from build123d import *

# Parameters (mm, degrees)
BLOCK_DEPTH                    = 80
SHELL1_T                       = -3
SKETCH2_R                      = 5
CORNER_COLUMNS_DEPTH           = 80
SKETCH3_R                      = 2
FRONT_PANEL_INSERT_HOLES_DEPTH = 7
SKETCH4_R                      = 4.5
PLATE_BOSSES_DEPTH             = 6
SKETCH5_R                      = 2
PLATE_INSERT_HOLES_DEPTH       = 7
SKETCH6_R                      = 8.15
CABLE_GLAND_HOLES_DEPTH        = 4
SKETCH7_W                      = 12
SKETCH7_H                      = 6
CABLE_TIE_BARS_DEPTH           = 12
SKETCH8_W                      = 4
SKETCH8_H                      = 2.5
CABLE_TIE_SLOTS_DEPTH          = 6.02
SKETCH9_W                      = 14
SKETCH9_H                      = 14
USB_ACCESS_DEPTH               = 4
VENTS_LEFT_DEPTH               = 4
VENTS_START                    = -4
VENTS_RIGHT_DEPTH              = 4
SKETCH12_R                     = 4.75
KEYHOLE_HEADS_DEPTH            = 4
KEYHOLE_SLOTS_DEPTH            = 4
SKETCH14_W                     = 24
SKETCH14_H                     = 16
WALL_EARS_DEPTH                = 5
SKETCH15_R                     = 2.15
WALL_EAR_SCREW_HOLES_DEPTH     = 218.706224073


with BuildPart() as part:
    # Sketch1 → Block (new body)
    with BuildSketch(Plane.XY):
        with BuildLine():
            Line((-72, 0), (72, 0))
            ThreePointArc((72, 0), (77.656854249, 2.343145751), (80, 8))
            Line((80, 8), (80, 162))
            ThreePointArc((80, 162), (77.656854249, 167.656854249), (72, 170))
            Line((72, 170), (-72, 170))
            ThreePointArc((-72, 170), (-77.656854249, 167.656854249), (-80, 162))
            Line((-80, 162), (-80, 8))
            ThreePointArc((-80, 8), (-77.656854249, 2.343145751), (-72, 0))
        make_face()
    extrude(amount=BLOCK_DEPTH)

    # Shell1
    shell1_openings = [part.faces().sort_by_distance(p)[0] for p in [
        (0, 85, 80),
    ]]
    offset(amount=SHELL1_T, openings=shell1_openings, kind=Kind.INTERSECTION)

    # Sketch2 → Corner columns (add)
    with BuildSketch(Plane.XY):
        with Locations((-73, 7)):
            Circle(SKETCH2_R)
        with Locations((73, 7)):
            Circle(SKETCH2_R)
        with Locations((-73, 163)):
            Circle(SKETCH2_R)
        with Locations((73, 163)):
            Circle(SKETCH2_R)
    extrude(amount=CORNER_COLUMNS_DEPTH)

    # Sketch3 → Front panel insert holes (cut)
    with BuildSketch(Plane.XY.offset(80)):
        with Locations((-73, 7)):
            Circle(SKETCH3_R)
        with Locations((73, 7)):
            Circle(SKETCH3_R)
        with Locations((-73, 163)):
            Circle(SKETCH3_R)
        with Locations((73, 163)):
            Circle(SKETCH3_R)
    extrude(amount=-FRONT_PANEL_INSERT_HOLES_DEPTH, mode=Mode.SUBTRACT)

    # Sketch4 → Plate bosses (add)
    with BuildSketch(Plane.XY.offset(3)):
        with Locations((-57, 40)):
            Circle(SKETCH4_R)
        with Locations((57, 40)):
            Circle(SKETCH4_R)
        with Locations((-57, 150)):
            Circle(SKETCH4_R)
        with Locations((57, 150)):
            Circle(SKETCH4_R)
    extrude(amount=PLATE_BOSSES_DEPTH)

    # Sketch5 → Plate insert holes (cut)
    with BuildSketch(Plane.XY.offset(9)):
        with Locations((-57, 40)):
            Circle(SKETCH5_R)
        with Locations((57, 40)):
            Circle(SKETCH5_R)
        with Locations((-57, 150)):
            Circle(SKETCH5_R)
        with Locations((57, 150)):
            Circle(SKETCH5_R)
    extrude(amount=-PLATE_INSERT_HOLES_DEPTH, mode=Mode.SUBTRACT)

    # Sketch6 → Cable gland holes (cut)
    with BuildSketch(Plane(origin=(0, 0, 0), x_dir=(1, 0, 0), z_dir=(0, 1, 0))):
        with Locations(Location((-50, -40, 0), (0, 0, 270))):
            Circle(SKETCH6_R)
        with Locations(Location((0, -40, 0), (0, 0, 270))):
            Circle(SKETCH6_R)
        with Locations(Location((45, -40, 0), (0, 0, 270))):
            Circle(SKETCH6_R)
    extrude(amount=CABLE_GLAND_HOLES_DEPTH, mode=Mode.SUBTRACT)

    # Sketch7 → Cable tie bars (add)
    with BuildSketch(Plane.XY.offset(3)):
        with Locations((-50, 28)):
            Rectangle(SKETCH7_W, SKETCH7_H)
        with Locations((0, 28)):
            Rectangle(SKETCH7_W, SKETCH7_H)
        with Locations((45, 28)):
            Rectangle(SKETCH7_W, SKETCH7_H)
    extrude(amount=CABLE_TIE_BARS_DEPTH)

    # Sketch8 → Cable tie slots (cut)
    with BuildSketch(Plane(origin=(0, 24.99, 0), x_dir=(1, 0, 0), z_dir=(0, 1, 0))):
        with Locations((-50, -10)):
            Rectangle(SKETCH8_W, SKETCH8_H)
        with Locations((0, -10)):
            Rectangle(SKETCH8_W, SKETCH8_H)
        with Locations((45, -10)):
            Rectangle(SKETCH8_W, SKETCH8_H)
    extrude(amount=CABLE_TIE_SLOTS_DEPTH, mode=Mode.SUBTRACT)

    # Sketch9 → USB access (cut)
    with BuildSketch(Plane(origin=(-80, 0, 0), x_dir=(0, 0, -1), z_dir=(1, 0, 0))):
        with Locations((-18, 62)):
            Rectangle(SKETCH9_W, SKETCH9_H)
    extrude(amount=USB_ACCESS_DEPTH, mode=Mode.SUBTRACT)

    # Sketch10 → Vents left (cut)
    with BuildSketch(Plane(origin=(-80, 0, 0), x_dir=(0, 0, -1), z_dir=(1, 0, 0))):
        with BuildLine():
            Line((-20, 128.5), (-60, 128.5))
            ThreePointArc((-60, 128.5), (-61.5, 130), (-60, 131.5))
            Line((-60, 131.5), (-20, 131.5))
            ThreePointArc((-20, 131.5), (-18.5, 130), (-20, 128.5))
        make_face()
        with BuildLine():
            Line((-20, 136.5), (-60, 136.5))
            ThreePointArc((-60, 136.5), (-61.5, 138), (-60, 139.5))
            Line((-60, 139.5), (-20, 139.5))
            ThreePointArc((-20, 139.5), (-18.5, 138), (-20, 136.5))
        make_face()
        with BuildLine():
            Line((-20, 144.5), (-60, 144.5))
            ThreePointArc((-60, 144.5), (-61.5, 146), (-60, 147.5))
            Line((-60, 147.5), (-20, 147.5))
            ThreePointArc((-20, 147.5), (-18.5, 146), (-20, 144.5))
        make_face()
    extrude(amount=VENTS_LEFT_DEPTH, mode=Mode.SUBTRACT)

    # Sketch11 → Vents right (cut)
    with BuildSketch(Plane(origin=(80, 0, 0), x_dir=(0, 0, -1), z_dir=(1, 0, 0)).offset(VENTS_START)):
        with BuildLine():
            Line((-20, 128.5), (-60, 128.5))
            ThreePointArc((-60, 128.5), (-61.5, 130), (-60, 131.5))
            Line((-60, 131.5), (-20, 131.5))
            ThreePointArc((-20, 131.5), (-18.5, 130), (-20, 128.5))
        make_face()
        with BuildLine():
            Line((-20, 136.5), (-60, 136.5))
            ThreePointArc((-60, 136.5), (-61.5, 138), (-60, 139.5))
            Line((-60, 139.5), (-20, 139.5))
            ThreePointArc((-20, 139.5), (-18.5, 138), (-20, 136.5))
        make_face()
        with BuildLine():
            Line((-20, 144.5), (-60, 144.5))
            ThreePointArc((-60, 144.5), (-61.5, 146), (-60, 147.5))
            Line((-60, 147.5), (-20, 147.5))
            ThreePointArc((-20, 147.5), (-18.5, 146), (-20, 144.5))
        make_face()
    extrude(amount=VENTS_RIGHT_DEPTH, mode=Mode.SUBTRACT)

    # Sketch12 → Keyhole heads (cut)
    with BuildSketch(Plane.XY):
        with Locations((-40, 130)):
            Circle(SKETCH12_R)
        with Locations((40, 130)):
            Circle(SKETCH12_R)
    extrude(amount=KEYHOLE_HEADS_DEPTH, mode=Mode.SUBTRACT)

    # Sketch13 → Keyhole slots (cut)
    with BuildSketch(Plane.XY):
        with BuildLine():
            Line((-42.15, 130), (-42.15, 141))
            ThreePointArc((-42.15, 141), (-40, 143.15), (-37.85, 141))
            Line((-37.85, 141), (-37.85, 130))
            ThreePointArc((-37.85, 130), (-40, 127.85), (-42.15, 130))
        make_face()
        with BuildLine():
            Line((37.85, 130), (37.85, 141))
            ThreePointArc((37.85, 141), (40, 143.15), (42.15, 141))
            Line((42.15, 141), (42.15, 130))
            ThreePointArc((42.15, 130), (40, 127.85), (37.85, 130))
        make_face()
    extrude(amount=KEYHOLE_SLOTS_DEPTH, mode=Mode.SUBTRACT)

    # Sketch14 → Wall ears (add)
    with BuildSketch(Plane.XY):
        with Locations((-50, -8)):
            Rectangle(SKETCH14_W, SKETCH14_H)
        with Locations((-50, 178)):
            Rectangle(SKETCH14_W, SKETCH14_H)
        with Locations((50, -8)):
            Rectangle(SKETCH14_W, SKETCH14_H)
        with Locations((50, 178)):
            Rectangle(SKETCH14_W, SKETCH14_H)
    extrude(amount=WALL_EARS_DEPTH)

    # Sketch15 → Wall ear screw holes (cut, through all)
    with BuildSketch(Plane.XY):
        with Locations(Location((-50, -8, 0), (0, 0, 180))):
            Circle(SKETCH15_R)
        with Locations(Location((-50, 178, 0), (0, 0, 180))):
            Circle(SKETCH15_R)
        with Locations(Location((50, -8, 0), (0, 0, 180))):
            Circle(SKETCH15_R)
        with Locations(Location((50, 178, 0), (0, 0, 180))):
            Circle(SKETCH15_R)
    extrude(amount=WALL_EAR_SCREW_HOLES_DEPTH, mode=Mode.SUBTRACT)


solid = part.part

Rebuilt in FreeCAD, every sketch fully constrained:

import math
import FreeCAD as App
import Part
import Sketcher

V = App.Vector


def faces_at(feature, points):
    """Names of the faces that lie closest to the given points."""
    faces = feature.Shape.Faces
    near = lambda p: min(range(len(faces)), key=lambda i: faces[i].distToShape(Part.Vertex(*p))[0])
    return sorted({f"Face{near(p) + 1}" for p in points})

doc = App.newDocument("Part")
params = doc.addObject("Spreadsheet::Sheet", "Params")
for row, (alias, value) in enumerate([
    ("sketch1_radius", "8 mm"),
    ("sketch1_width", "144 mm"),
    ("sketch1_height", "154 mm"),
    ("pad1_length", "80 mm"),
    ("thickness_wall", "3 mm"),
    ("sketch2_diameter", "10 mm"),
    ("pad2_length", "80 mm"),
    ("sketch3_diameter", "4 mm"),
    ("pocket1_length", "7 mm"),
    ("sketch4_diameter", "9 mm"),
    ("pad3_length", "6 mm"),
    ("sketch5_diameter", "4 mm"),
    ("pocket2_length", "7 mm"),
    ("sketch6_diameter", "16.3 mm"),
    ("pocket3_length", "4 mm"),
    ("sketch7_width", "12 mm"),
    ("sketch7_height", "6 mm"),
    ("pad4_length", "12 mm"),
    ("sketch8_width", "4 mm"),
    ("sketch8_height", "2.5 mm"),
    ("pocket4_length", "6.02 mm"),
    ("sketch9_width", "14 mm"),
    ("pocket5_length", "4 mm"),
    ("sketch10_radius", "1.5 mm"),
    ("sketch10_height", "40 mm"),
    ("pocket6_length", "4 mm"),
    ("sketch11_radius", "1.5 mm"),
    ("sketch11_height", "40 mm"),
    ("pocket7_length", "4 mm"),
    ("sketch12_diameter", "9.5 mm"),
    ("pocket8_length", "4 mm"),
    ("sketch13_height", "11 mm"),
    ("sketch13_radius", "2.15 mm"),
    ("pocket9_length", "4 mm"),
    ("sketch14_width", "24 mm"),
    ("sketch14_height", "16 mm"),
    ("pad5_length", "5 mm"),
    ("sketch15_diameter", "4.3 mm"),
], start=1):
    params.set(f"A{row}", alias)
    params.set(f"B{row}", "=" + value)
    params.setAlias(f"B{row}", alias)

body = doc.addObject("PartDesign::Body", "Body")

# Sketch on XY plane
sketch1 = body.newObject("Sketcher::SketchObject", "Sketch")
sketch1.AttachmentSupport = (doc.getObject("XY_Plane"), [""])
sketch1.MapMode = "FlatFace"
sketch1.addGeometry([
    Part.LineSegment(V(-72, 0, 0), V(72, 0, 0)),  # 0
    Part.ArcOfCircle(Part.Circle(V(72, 8, 0), V(0, 0, 1), 8), math.radians(-90), math.radians(0)),  # 1
    Part.LineSegment(V(80, 8, 0), V(80, 162, 0)),  # 2
    Part.ArcOfCircle(Part.Circle(V(72, 162, 0), V(0, 0, 1), 8), math.radians(0), math.radians(90)),  # 3
    Part.LineSegment(V(72, 170, 0), V(-72, 170, 0)),  # 4
    Part.ArcOfCircle(Part.Circle(V(-72, 162, 0), V(0, 0, 1), 8), math.radians(90), math.radians(180)),  # 5
    Part.LineSegment(V(-80, 162, 0), V(-80, 8, 0)),  # 6
    Part.ArcOfCircle(Part.Circle(V(-72, 8, 0), V(0, 0, 1), 8), math.radians(-180), math.radians(-90)),  # 7
], False)
sketch1.addConstraint([
    Sketcher.Constraint("Tangent", 0, 2, 1, 1),
    Sketcher.Constraint("Tangent", 1, 2, 2, 1),
    Sketcher.Constraint("Tangent", 2, 2, 3, 1),
    Sketcher.Constraint("Tangent", 3, 2, 4, 1),
    Sketcher.Constraint("Tangent", 4, 2, 5, 1),
    Sketcher.Constraint("Tangent", 5, 2, 6, 1),
    Sketcher.Constraint("Tangent", 6, 2, 7, 1),
    Sketcher.Constraint("Tangent", 7, 2, 0, 1),
    Sketcher.Constraint("Horizontal", 0),
    Sketcher.Constraint("Vertical", 2),
    Sketcher.Constraint("Horizontal", 4),
    Sketcher.Constraint("Vertical", 6),
    Sketcher.Constraint("Equal", 1, 3),
    Sketcher.Constraint("Equal", 3, 5),
    Sketcher.Constraint("Equal", 5, 7),
    Sketcher.Constraint("Symmetric", 0, 2, 7, 2, -1, 1),
    Sketcher.Constraint("Radius", 1, 8.0),
    Sketcher.Constraint("DistanceX", 0, 1, 0, 2, 144.0),
    Sketcher.Constraint("DistanceY", 2, 1, 2, 2, 154.0),
])
sketch1.setExpression("Constraints[16]", "Params.sketch1_radius")
sketch1.setExpression("Constraints[17]", "Params.sketch1_width")
sketch1.setExpression("Constraints[18]", "Params.sketch1_height")
pad1 = body.newObject("PartDesign::Pad", "Pad")
pad1.Profile = sketch1
pad1.setExpression("Length", "Params.pad1_length")
doc.recompute()

thickness = body.newObject("PartDesign::Thickness", "Thickness")
thickness.Base = (pad1, faces_at(pad1, [(0, 85, 80)]))
thickness.setExpression("Value", "Params.thickness_wall")
thickness.Reversed = True
thickness.Join = "Intersection"

# Sketch on XY plane
sketch2 = body.newObject("Sketcher::SketchObject", "Sketch001")
sketch2.AttachmentSupport = (doc.getObject("XY_Plane"), [""])
sketch2.MapMode = "FlatFace"
sketch2.addGeometry([
    Part.Circle(V(-73, 7, 0), V(0, 0, 1), 5),
    Part.Circle(V(73, 7, 0), V(0, 0, 1), 5),
    Part.Circle(V(-73, 163, 0), V(0, 0, 1), 5),
    Part.Circle(V(73, 163, 0), V(0, 0, 1), 5),
], False)
sketch2.addConstraint([
    Sketcher.Constraint("Equal", 0, 1),
    Sketcher.Constraint("Equal", 1, 2),
    Sketcher.Constraint("Equal", 2, 3),
    Sketcher.Constraint("Symmetric", 0, 3, 1, 3, -2),
    Sketcher.Constraint("Symmetric", 2, 3, 3, 3, -2),
    Sketcher.Constraint("Vertical", 0, 3, 2, 3),
    Sketcher.Constraint("Diameter", 0, 10.0),
    Sketcher.Constraint("DistanceX", 0, 3, -1, 1, 73.0),
    Sketcher.Constraint("DistanceY", -1, 1, 0, 3, 7.0),
    Sketcher.Constraint("DistanceY", -1, 1, 2, 3, 163.0),
])
sketch2.setExpression("Constraints[6]", "Params.sketch2_diameter")
pad2 = body.newObject("PartDesign::Pad", "Pad001")
pad2.Profile = sketch2
pad2.setExpression("Length", "Params.pad2_length")

# Sketch on XY plane
sketch3 = body.newObject("Sketcher::SketchObject", "Sketch002")
sketch3.AttachmentSupport = (doc.getObject("XY_Plane"), [""])
sketch3.MapMode = "FlatFace"
sketch3.AttachmentOffset = App.Placement(V(0, 0, 80), App.Rotation())
sketch3.addGeometry([
    Part.Circle(V(-73, 7, 0), V(0, 0, 1), 2),
    Part.Circle(V(73, 7, 0), V(0, 0, 1), 2),
    Part.Circle(V(-73, 163, 0), V(0, 0, 1), 2),
    Part.Circle(V(73, 163, 0), V(0, 0, 1), 2),
], False)
sketch3.addConstraint([
    Sketcher.Constraint("Equal", 0, 1),
    Sketcher.Constraint("Equal", 1, 2),
    Sketcher.Constraint("Equal", 2, 3),
    Sketcher.Constraint("Symmetric", 0, 3, 1, 3, -2),
    Sketcher.Constraint("Symmetric", 2, 3, 3, 3, -2),
    Sketcher.Constraint("Vertical", 0, 3, 2, 3),
    Sketcher.Constraint("Diameter", 0, 4.0),
    Sketcher.Constraint("DistanceX", 0, 3, -1, 1, 73.0),
    Sketcher.Constraint("DistanceY", -1, 1, 0, 3, 7.0),
    Sketcher.Constraint("DistanceY", -1, 1, 2, 3, 163.0),
])
sketch3.setExpression("Constraints[6]", "Params.sketch3_diameter")
pocket1 = body.newObject("PartDesign::Pocket", "Pocket")
pocket1.Profile = sketch3
pocket1.setExpression("Length", "Params.pocket1_length")

# Sketch on XY plane
sketch4 = body.newObject("Sketcher::SketchObject", "Sketch003")
sketch4.AttachmentSupport = (doc.getObject("XY_Plane"), [""])
sketch4.MapMode = "FlatFace"
sketch4.AttachmentOffset = App.Placement(V(0, 0, 3), App.Rotation())
sketch4.addGeometry([
    Part.Circle(V(-57, 40, 0), V(0, 0, 1), 4.5),
    Part.Circle(V(57, 40, 0), V(0, 0, 1), 4.5),
    Part.Circle(V(-57, 150, 0), V(0, 0, 1), 4.5),
    Part.Circle(V(57, 150, 0), V(0, 0, 1), 4.5),
], False)
sketch4.addConstraint([
    Sketcher.Constraint("Equal", 0, 1),
    Sketcher.Constraint("Equal", 1, 2),
    Sketcher.Constraint("Equal", 2, 3),
    Sketcher.Constraint("Symmetric", 0, 3, 1, 3, -2),
    Sketcher.Constraint("Symmetric", 2, 3, 3, 3, -2),
    Sketcher.Constraint("Vertical", 0, 3, 2, 3),
    Sketcher.Constraint("Diameter", 0, 9.0),
    Sketcher.Constraint("DistanceX", 0, 3, -1, 1, 57.0),
    Sketcher.Constraint("DistanceY", -1, 1, 0, 3, 40.0),
    Sketcher.Constraint("DistanceY", -1, 1, 2, 3, 150.0),
])
sketch4.setExpression("Constraints[6]", "Params.sketch4_diameter")
pad3 = body.newObject("PartDesign::Pad", "Pad002")
pad3.Profile = sketch4
pad3.setExpression("Length", "Params.pad3_length")

# Sketch on XY plane
sketch5 = body.newObject("Sketcher::SketchObject", "Sketch004")
sketch5.AttachmentSupport = (doc.getObject("XY_Plane"), [""])
sketch5.MapMode = "FlatFace"
sketch5.AttachmentOffset = App.Placement(V(0, 0, 9), App.Rotation())
sketch5.addGeometry([
    Part.Circle(V(-57, 40, 0), V(0, 0, 1), 2),
    Part.Circle(V(57, 40, 0), V(0, 0, 1), 2),
    Part.Circle(V(-57, 150, 0), V(0, 0, 1), 2),
    Part.Circle(V(57, 150, 0), V(0, 0, 1), 2),
], False)
sketch5.addConstraint([
    Sketcher.Constraint("Equal", 0, 1),
    Sketcher.Constraint("Equal", 1, 2),
    Sketcher.Constraint("Equal", 2, 3),
    Sketcher.Constraint("Symmetric", 0, 3, 1, 3, -2),
    Sketcher.Constraint("Symmetric", 2, 3, 3, 3, -2),
    Sketcher.Constraint("Vertical", 0, 3, 2, 3),
    Sketcher.Constraint("Diameter", 0, 4.0),
    Sketcher.Constraint("DistanceX", 0, 3, -1, 1, 57.0),
    Sketcher.Constraint("DistanceY", -1, 1, 0, 3, 40.0),
    Sketcher.Constraint("DistanceY", -1, 1, 2, 3, 150.0),
])
sketch5.setExpression("Constraints[6]", "Params.sketch5_diameter")
pocket2 = body.newObject("PartDesign::Pocket", "Pocket001")
pocket2.Profile = sketch5
pocket2.setExpression("Length", "Params.pocket2_length")

# Sketch on XZ plane
sketch6 = body.newObject("Sketcher::SketchObject", "Sketch005")
sketch6.AttachmentSupport = (doc.getObject("XZ_Plane"), [""])
sketch6.MapMode = "FlatFace"
sketch6.addGeometry([
    Part.Circle(V(-50, 40, 0), V(0, 0, 1), 8),
    Part.Circle(V(0, 40, 0), V(0, 0, 1), 8),
    Part.Circle(V(45, 40, 0), V(0, 0, 1), 8),
], False)
sketch6.addConstraint([
    Sketcher.Constraint("Equal", 0, 1),
    Sketcher.Constraint("Equal", 1, 2),
    Sketcher.Constraint("PointOnObject", 1, 3, -2),
    Sketcher.Constraint("Horizontal", 0, 3, 1, 3),
    Sketcher.Constraint("Horizontal", 1, 3, 2, 3),
    Sketcher.Constraint("Diameter", 0, 16.3),
    Sketcher.Constraint("DistanceX", 0, 3, -1, 1, 50.0),
    Sketcher.Constraint("DistanceY", -1, 1, 0, 3, 40.0),
    Sketcher.Constraint("DistanceX", -1, 1, 2, 3, 45.0),
])
sketch6.setExpression("Constraints[5]", "Params.sketch6_diameter")
pocket3 = body.newObject("PartDesign::Pocket", "Pocket002")
pocket3.Profile = sketch6
pocket3.setExpression("Length", "Params.pocket3_length")

# Sketch on XY plane
sketch7 = body.newObject("Sketcher::SketchObject", "Sketch006")
sketch7.AttachmentSupport = (doc.getObject("XY_Plane"), [""])
sketch7.MapMode = "FlatFace"
sketch7.AttachmentOffset = App.Placement(V(0, 0, 3), App.Rotation())
sketch7.addGeometry([
    Part.LineSegment(V(-56, 31, 0), V(-56, 25, 0)),  # 0
    Part.LineSegment(V(-56, 25, 0), V(-44, 25, 0)),  # 1
    Part.LineSegment(V(-44, 25, 0), V(-44, 31, 0)),  # 2
    Part.LineSegment(V(-44, 31, 0), V(-56, 31, 0)),  # 3
    Part.LineSegment(V(-6, 31, 0), V(-6, 25, 0)),  # 4
    Part.LineSegment(V(-6, 25, 0), V(6, 25, 0)),  # 5
    Part.LineSegment(V(6, 25, 0), V(6, 31, 0)),  # 6
    Part.LineSegment(V(6, 31, 0), V(-6, 31, 0)),  # 7
    Part.LineSegment(V(39, 31, 0), V(39, 25, 0)),  # 8
    Part.LineSegment(V(39, 25, 0), V(51, 25, 0)),  # 9
    Part.LineSegment(V(51, 25, 0), V(51, 31, 0)),  # 10
    Part.LineSegment(V(51, 31, 0), V(39, 31, 0)),  # 11
], False)
sketch7.addConstraint([
    Sketcher.Constraint("Coincident", 0, 2, 1, 1),
    Sketcher.Constraint("Coincident", 1, 2, 2, 1),
    Sketcher.Constraint("Coincident", 2, 2, 3, 1),
    Sketcher.Constraint("Coincident", 3, 2, 0, 1),
    Sketcher.Constraint("Coincident", 4, 2, 5, 1),
    Sketcher.Constraint("Coincident", 5, 2, 6, 1),
    Sketcher.Constraint("Coincident", 6, 2, 7, 1),
    Sketcher.Constraint("Coincident", 7, 2, 4, 1),
    Sketcher.Constraint("Coincident", 8, 2, 9, 1),
    Sketcher.Constraint("Coincident", 9, 2, 10, 1),
    Sketcher.Constraint("Coincident", 10, 2, 11, 1),
    Sketcher.Constraint("Coincident", 11, 2, 8, 1),
    Sketcher.Constraint("Vertical", 0),
    Sketcher.Constraint("Horizontal", 1),
    Sketcher.Constraint("Vertical", 2),
    Sketcher.Constraint("Horizontal", 3),
    Sketcher.Constraint("Vertical", 4),
    Sketcher.Constraint("Horizontal", 5),
    Sketcher.Constraint("Vertical", 6),
    Sketcher.Constraint("Horizontal", 7),
    Sketcher.Constraint("Vertical", 8),
    Sketcher.Constraint("Horizontal", 9),
    Sketcher.Constraint("Vertical", 10),
    Sketcher.Constraint("Horizontal", 11),
    Sketcher.Constraint("Horizontal", 1, 2, 4, 2),
    Sketcher.Constraint("Horizontal", 3, 2, 6, 2),
    Sketcher.Constraint("Horizontal", 5, 2, 8, 2),
    Sketcher.Constraint("Horizontal", 7, 2, 10, 2),
    Sketcher.Constraint("Equal", 3, 5),
    Sketcher.Constraint("Equal", 7, 9),
    Sketcher.Constraint("DistanceX", 1, 1, 1, 2, 12.0),
    Sketcher.Constraint("DistanceY", 0, 2, 0, 1, 6.0),
    Sketcher.Constraint("DistanceX", 0, 2, -1, 1, 56.0),
    Sketcher.Constraint("DistanceY", -1, 1, 0, 2, 25.0),
    Sketcher.Constraint("DistanceX", 4, 2, -1, 1, 6.0),
    Sketcher.Constraint("DistanceX", -1, 1, 8, 2, 39.0),
])
sketch7.setExpression("Constraints[30]", "Params.sketch7_width")
sketch7.setExpression("Constraints[31]", "Params.sketch7_height")
pad4 = body.newObject("PartDesign::Pad", "Pad003")
pad4.Profile = sketch7
pad4.setExpression("Length", "Params.pad4_length")

# Sketch on XZ plane
sketch8 = body.newObject("Sketcher::SketchObject", "Sketch007")
sketch8.AttachmentSupport = (doc.getObject("XZ_Plane"), [""])
sketch8.MapMode = "FlatFace"
sketch8.AttachmentOffset = App.Placement(V(0, 0, -24.99), App.Rotation())
sketch8.addGeometry([
    Part.LineSegment(V(-52, 8.8, 0), V(-52, 11.2, 0)),  # 0
    Part.LineSegment(V(-52, 11.2, 0), V(-48, 11.2, 0)),  # 1
    Part.LineSegment(V(-48, 11.2, 0), V(-48, 8.8, 0)),  # 2
    Part.LineSegment(V(-48, 8.8, 0), V(-52, 8.8, 0)),  # 3
    Part.LineSegment(V(-2, 8.8, 0), V(-2, 11.2, 0)),  # 4
    Part.LineSegment(V(-2, 11.2, 0), V(2, 11.2, 0)),  # 5
    Part.LineSegment(V(2, 11.2, 0), V(2, 8.8, 0)),  # 6
    Part.LineSegment(V(2, 8.8, 0), V(-2, 8.8, 0)),  # 7
    Part.LineSegment(V(43, 8.8, 0), V(43, 11.2, 0)),  # 8
    Part.LineSegment(V(43, 11.2, 0), V(47, 11.2, 0)),  # 9
    Part.LineSegment(V(47, 11.2, 0), V(47, 8.8, 0)),  # 10
    Part.LineSegment(V(47, 8.8, 0), V(43, 8.8, 0)),  # 11
], False)
sketch8.addConstraint([
    Sketcher.Constraint("Coincident", 0, 2, 1, 1),
    Sketcher.Constraint("Coincident", 1, 2, 2, 1),
    Sketcher.Constraint("Coincident", 2, 2, 3, 1),
    Sketcher.Constraint("Coincident", 3, 2, 0, 1),
    Sketcher.Constraint("Coincident", 4, 2, 5, 1),
    Sketcher.Constraint("Coincident", 5, 2, 6, 1),
    Sketcher.Constraint("Coincident", 6, 2, 7, 1),
    Sketcher.Constraint("Coincident", 7, 2, 4, 1),
    Sketcher.Constraint("Coincident", 8, 2, 9, 1),
    Sketcher.Constraint("Coincident", 9, 2, 10, 1),
    Sketcher.Constraint("Coincident", 10, 2, 11, 1),
    Sketcher.Constraint("Coincident", 11, 2, 8, 1),
    Sketcher.Constraint("Vertical", 0),
    Sketcher.Constraint("Horizontal", 1),
    Sketcher.Constraint("Vertical", 2),
    Sketcher.Constraint("Horizontal", 3),
    Sketcher.Constraint("Vertical", 4),
    Sketcher.Constraint("Horizontal", 5),
    Sketcher.Constraint("Vertical", 6),
    Sketcher.Constraint("Horizontal", 7),
    Sketcher.Constraint("Vertical", 8),
    Sketcher.Constraint("Horizontal", 9),
    Sketcher.Constraint("Vertical", 10),
    Sketcher.Constraint("Horizontal", 11),
    Sketcher.Constraint("Horizontal", 1, 2, 4, 2),
    Sketcher.Constraint("Horizontal", 3, 2, 6, 2),
    Sketcher.Constraint("Horizontal", 5, 2, 8, 2),
    Sketcher.Constraint("Horizontal", 7, 2, 10, 2),
    Sketcher.Constraint("Equal", 3, 5),
    Sketcher.Constraint("Equal", 7, 9),
    Sketcher.Constraint("DistanceX", 1, 1, 1, 2, 4.0),
    Sketcher.Constraint("DistanceY", 0, 1, 0, 2, 2.5),
    Sketcher.Constraint("DistanceX", 0, 2, -1, 1, 52.0),
    Sketcher.Constraint("DistanceX", 4, 2, -1, 1, 2.0),
    Sketcher.Constraint("DistanceX", -1, 1, 8, 2, 43.0),
    Sketcher.Constraint("DistanceY", -1, 1, 0, 2, 11.25),
])
sketch8.setExpression("Constraints[30]", "Params.sketch8_width")
sketch8.setExpression("Constraints[31]", "Params.sketch8_height")
pocket4 = body.newObject("PartDesign::Pocket", "Pocket003")
pocket4.Profile = sketch8
pocket4.setExpression("Length", "Params.pocket4_length")

# Sketch on YZ plane
sketch9 = body.newObject("Sketcher::SketchObject", "Sketch008")
sketch9.AttachmentSupport = (doc.getObject("YZ_Plane"), [""])
sketch9.MapMode = "FlatFace"
sketch9.AttachmentOffset = App.Placement(V(0, 0, -80), App.Rotation())
sketch9.addGeometry([
    Part.LineSegment(V(69, 25, 0), V(55, 25, 0)),
    Part.LineSegment(V(55, 25, 0), V(55, 11, 0)),
    Part.LineSegment(V(55, 11, 0), V(69, 11, 0)),
    Part.LineSegment(V(69, 11, 0), V(69, 25, 0)),
], False)
sketch9.addConstraint([
    Sketcher.Constraint("Coincident", 0, 2, 1, 1),
    Sketcher.Constraint("Coincident", 1, 2, 2, 1),
    Sketcher.Constraint("Coincident", 2, 2, 3, 1),
    Sketcher.Constraint("Coincident", 3, 2, 0, 1),
    Sketcher.Constraint("Horizontal", 0),
    Sketcher.Constraint("Vertical", 1),
    Sketcher.Constraint("Horizontal", 2),
    Sketcher.Constraint("Vertical", 3),
    Sketcher.Constraint("Equal", 2, 1),
    Sketcher.Constraint("DistanceX", 0, 2, 0, 1, 14.0),
    Sketcher.Constraint("DistanceX", -1, 1, 0, 2, 55.0),
    Sketcher.Constraint("DistanceY", -1, 1, 0, 2, 25.0),
])
sketch9.setExpression("Constraints[9]", "Params.sketch9_width")
pocket5 = body.newObject("PartDesign::Pocket", "Pocket004")
pocket5.Profile = sketch9
pocket5.setExpression("Length", "Params.pocket5_length")
pocket5.Reversed = True

# Sketch on YZ plane
sketch10 = body.newObject("Sketcher::SketchObject", "Sketch009")
sketch10.AttachmentSupport = (doc.getObject("YZ_Plane"), [""])
sketch10.MapMode = "FlatFace"
sketch10.AttachmentOffset = App.Placement(V(0, 0, -80), App.Rotation())
sketch10.addGeometry([
    Part.LineSegment(V(128.5, 60, 0), V(128.5, 20, 0)),  # 0
    Part.ArcOfCircle(Part.Circle(V(130, 20, 0), V(0, 0, 1), 1.5), math.radians(180), math.radians(360)),  # 1
    Part.LineSegment(V(131.5, 20, 0), V(131.5, 60, 0)),  # 2
    Part.ArcOfCircle(Part.Circle(V(130, 60, 0), V(0, 0, 1), 1.5), math.radians(0), math.radians(180)),  # 3
    Part.LineSegment(V(136.5, 60, 0), V(136.5, 20, 0)),  # 4
    Part.ArcOfCircle(Part.Circle(V(138, 20, 0), V(0, 0, 1), 1.5), math.radians(180), math.radians(360)),  # 5
    Part.LineSegment(V(139.5, 20, 0), V(139.5, 60, 0)),  # 6
    Part.ArcOfCircle(Part.Circle(V(138, 60, 0), V(0, 0, 1), 1.5), math.radians(0), math.radians(180)),  # 7
    Part.LineSegment(V(144.5, 60, 0), V(144.5, 20, 0)),  # 8
    Part.ArcOfCircle(Part.Circle(V(146, 20, 0), V(0, 0, 1), 1.5), math.radians(180), math.radians(360)),  # 9
    Part.LineSegment(V(147.5, 20, 0), V(147.5, 60, 0)),  # 10
    Part.ArcOfCircle(Part.Circle(V(146, 60, 0), V(0, 0, 1), 1.5), math.radians(0), math.radians(180)),  # 11
], False)
sketch10.addConstraint([
    Sketcher.Constraint("Tangent", 0, 2, 1, 1),
    Sketcher.Constraint("Tangent", 1, 2, 2, 1),
    Sketcher.Constraint("Tangent", 2, 2, 3, 1),
    Sketcher.Constraint("Tangent", 3, 2, 0, 1),
    Sketcher.Constraint("Tangent", 4, 2, 5, 1),
    Sketcher.Constraint("Tangent", 5, 2, 6, 1),
    Sketcher.Constraint("Tangent", 6, 2, 7, 1),
    Sketcher.Constraint("Tangent", 7, 2, 4, 1),
    Sketcher.Constraint("Tangent", 8, 2, 9, 1),
    Sketcher.Constraint("Tangent", 9, 2, 10, 1),
    Sketcher.Constraint("Tangent", 10, 2, 11, 1),
    Sketcher.Constraint("Tangent", 11, 2, 8, 1),
    Sketcher.Constraint("Vertical", 0),
    Sketcher.Constraint("Vertical", 2),
    Sketcher.Constraint("Vertical", 4),
    Sketcher.Constraint("Vertical", 6),
    Sketcher.Constraint("Vertical", 8),
    Sketcher.Constraint("Vertical", 10),
    Sketcher.Constraint("Equal", 3, 5),
    Sketcher.Constraint("Equal", 7, 9),
    Sketcher.Constraint("Horizontal", 1, 3, 5, 3),
    Sketcher.Constraint("Horizontal", 3, 3, 7, 3),
    Sketcher.Constraint("Horizontal", 5, 3, 9, 3),
    Sketcher.Constraint("Horizontal", 7, 3, 11, 3),
    Sketcher.Constraint("Radius", 1, 1.5),
    Sketcher.Constraint("DistanceY", 0, 2, 0, 1, 40.0),
    Sketcher.Constraint("DistanceX", -1, 1, 1, 3, 130.0),
    Sketcher.Constraint("DistanceY", -1, 1, 1, 3, 20.0),
    Sketcher.Constraint("DistanceX", -1, 1, 5, 3, 138.0),
    Sketcher.Constraint("DistanceX", -1, 1, 9, 3, 146.0),
])
sketch10.setExpression("Constraints[24]", "Params.sketch10_radius")
sketch10.setExpression("Constraints[25]", "Params.sketch10_height")
pocket6 = body.newObject("PartDesign::Pocket", "Pocket005")
pocket6.Profile = sketch10
pocket6.setExpression("Length", "Params.pocket6_length")
pocket6.Reversed = True

# Sketch on YZ plane
sketch11 = body.newObject("Sketcher::SketchObject", "Sketch010")
sketch11.AttachmentSupport = (doc.getObject("YZ_Plane"), [""])
sketch11.MapMode = "FlatFace"
sketch11.AttachmentOffset = App.Placement(V(0, 0, 76), App.Rotation())
sketch11.addGeometry([
    Part.LineSegment(V(128.5, 60, 0), V(128.5, 20, 0)),  # 0
    Part.ArcOfCircle(Part.Circle(V(130, 20, 0), V(0, 0, 1), 1.5), math.radians(180), math.radians(360)),  # 1
    Part.LineSegment(V(131.5, 20, 0), V(131.5, 60, 0)),  # 2
    Part.ArcOfCircle(Part.Circle(V(130, 60, 0), V(0, 0, 1), 1.5), math.radians(0), math.radians(180)),  # 3
    Part.LineSegment(V(136.5, 60, 0), V(136.5, 20, 0)),  # 4
    Part.ArcOfCircle(Part.Circle(V(138, 20, 0), V(0, 0, 1), 1.5), math.radians(180), math.radians(360)),  # 5
    Part.LineSegment(V(139.5, 20, 0), V(139.5, 60, 0)),  # 6
    Part.ArcOfCircle(Part.Circle(V(138, 60, 0), V(0, 0, 1), 1.5), math.radians(0), math.radians(180)),  # 7
    Part.LineSegment(V(144.5, 60, 0), V(144.5, 20, 0)),  # 8
    Part.ArcOfCircle(Part.Circle(V(146, 20, 0), V(0, 0, 1), 1.5), math.radians(180), math.radians(360)),  # 9
    Part.LineSegment(V(147.5, 20, 0), V(147.5, 60, 0)),  # 10
    Part.ArcOfCircle(Part.Circle(V(146, 60, 0), V(0, 0, 1), 1.5), math.radians(0), math.radians(180)),  # 11
], False)
sketch11.addConstraint([
    Sketcher.Constraint("Tangent", 0, 2, 1, 1),
    Sketcher.Constraint("Tangent", 1, 2, 2, 1),
    Sketcher.Constraint("Tangent", 2, 2, 3, 1),
    Sketcher.Constraint("Tangent", 3, 2, 0, 1),
    Sketcher.Constraint("Tangent", 4, 2, 5, 1),
    Sketcher.Constraint("Tangent", 5, 2, 6, 1),
    Sketcher.Constraint("Tangent", 6, 2, 7, 1),
    Sketcher.Constraint("Tangent", 7, 2, 4, 1),
    Sketcher.Constraint("Tangent", 8, 2, 9, 1),
    Sketcher.Constraint("Tangent", 9, 2, 10, 1),
    Sketcher.Constraint("Tangent", 10, 2, 11, 1),
    Sketcher.Constraint("Tangent", 11, 2, 8, 1),
    Sketcher.Constraint("Vertical", 0),
    Sketcher.Constraint("Vertical", 2),
    Sketcher.Constraint("Vertical", 4),
    Sketcher.Constraint("Vertical", 6),
    Sketcher.Constraint("Vertical", 8),
    Sketcher.Constraint("Vertical", 10),
    Sketcher.Constraint("Equal", 3, 5),
    Sketcher.Constraint("Equal", 7, 9),
    Sketcher.Constraint("Horizontal", 1, 3, 5, 3),
    Sketcher.Constraint("Horizontal", 3, 3, 7, 3),
    Sketcher.Constraint("Horizontal", 5, 3, 9, 3),
    Sketcher.Constraint("Horizontal", 7, 3, 11, 3),
    Sketcher.Constraint("Radius", 1, 1.5),
    Sketcher.Constraint("DistanceY", 0, 2, 0, 1, 40.0),
    Sketcher.Constraint("DistanceX", -1, 1, 1, 3, 130.0),
    Sketcher.Constraint("DistanceY", -1, 1, 1, 3, 20.0),
    Sketcher.Constraint("DistanceX", -1, 1, 5, 3, 138.0),
    Sketcher.Constraint("DistanceX", -1, 1, 9, 3, 146.0),
])
sketch11.setExpression("Constraints[24]", "Params.sketch11_radius")
sketch11.setExpression("Constraints[25]", "Params.sketch11_height")
pocket7 = body.newObject("PartDesign::Pocket", "Pocket006")
pocket7.Profile = sketch11
pocket7.setExpression("Length", "Params.pocket7_length")
pocket7.Reversed = True

# Sketch on XY plane
sketch12 = body.newObject("Sketcher::SketchObject", "Sketch011")
sketch12.AttachmentSupport = (doc.getObject("XY_Plane"), [""])
sketch12.MapMode = "FlatFace"
sketch12.addGeometry([
    Part.Circle(V(-40, 130, 0), V(0, 0, 1), 4.8),
    Part.Circle(V(40, 130, 0), V(0, 0, 1), 4.8),
], False)
sketch12.addConstraint([
    Sketcher.Constraint("Equal", 0, 1),
    Sketcher.Constraint("Symmetric", 0, 3, 1, 3, -2),
    Sketcher.Constraint("Diameter", 0, 9.5),
    Sketcher.Constraint("DistanceX", 0, 3, -1, 1, 40.0),
    Sketcher.Constraint("DistanceY", -1, 1, 0, 3, 130.0),
])
sketch12.setExpression("Constraints[2]", "Params.sketch12_diameter")
pocket8 = body.newObject("PartDesign::Pocket", "Pocket007")
pocket8.Profile = sketch12
pocket8.setExpression("Length", "Params.pocket8_length")
pocket8.Reversed = True

# Sketch on XY plane
sketch13 = body.newObject("Sketcher::SketchObject", "Sketch012")
sketch13.AttachmentSupport = (doc.getObject("XY_Plane"), [""])
sketch13.MapMode = "FlatFace"
sketch13.addGeometry([
    Part.LineSegment(V(-42.1, 141, 0), V(-42.1, 130, 0)),  # 0
    Part.ArcOfCircle(Part.Circle(V(-40, 130, 0), V(0, 0, 1), 2.1), math.radians(180), math.radians(360)),  # 1
    Part.LineSegment(V(-37.9, 130, 0), V(-37.9, 141, 0)),  # 2
    Part.ArcOfCircle(Part.Circle(V(-40, 141, 0), V(0, 0, 1), 2.1), math.radians(0), math.radians(180)),  # 3
    Part.LineSegment(V(37.9, 141, 0), V(37.9, 130, 0)),  # 4
    Part.ArcOfCircle(Part.Circle(V(40, 130, 0), V(0, 0, 1), 2.1), math.radians(180), math.radians(360)),  # 5
    Part.LineSegment(V(42.1, 130, 0), V(42.1, 141, 0)),  # 6
    Part.ArcOfCircle(Part.Circle(V(40, 141, 0), V(0, 0, 1), 2.1), math.radians(0), math.radians(180)),  # 7
], False)
sketch13.addConstraint([
    Sketcher.Constraint("Tangent", 0, 2, 1, 1),
    Sketcher.Constraint("Tangent", 1, 2, 2, 1),
    Sketcher.Constraint("Tangent", 2, 2, 3, 1),
    Sketcher.Constraint("Tangent", 3, 2, 0, 1),
    Sketcher.Constraint("Tangent", 4, 2, 5, 1),
    Sketcher.Constraint("Tangent", 5, 2, 6, 1),
    Sketcher.Constraint("Tangent", 6, 2, 7, 1),
    Sketcher.Constraint("Tangent", 7, 2, 4, 1),
    Sketcher.Constraint("Vertical", 0),
    Sketcher.Constraint("Vertical", 2),
    Sketcher.Constraint("Vertical", 4),
    Sketcher.Constraint("Vertical", 6),
    Sketcher.Constraint("Equal", 3, 5),
    Sketcher.Constraint("Symmetric", 1, 3, 5, 3, -2),
    Sketcher.Constraint("Horizontal", 3, 3, 7, 3),
    Sketcher.Constraint("DistanceY", 0, 2, 0, 1, 11.0),
    Sketcher.Constraint("Radius", 1, 2.15),
    Sketcher.Constraint("DistanceX", 1, 3, -1, 1, 40.0),
    Sketcher.Constraint("DistanceY", -1, 1, 1, 3, 130.0),
])
sketch13.setExpression("Constraints[15]", "Params.sketch13_height")
sketch13.setExpression("Constraints[16]", "Params.sketch13_radius")
pocket9 = body.newObject("PartDesign::Pocket", "Pocket008")
pocket9.Profile = sketch13
pocket9.setExpression("Length", "Params.pocket9_length")
pocket9.Reversed = True

# Sketch on XY plane
sketch14 = body.newObject("Sketcher::SketchObject", "Sketch013")
sketch14.AttachmentSupport = (doc.getObject("XY_Plane"), [""])
sketch14.MapMode = "FlatFace"
sketch14.addGeometry([
    Part.LineSegment(V(-62, 0, 0), V(-62, -16, 0)),  # 0
    Part.LineSegment(V(-62, -16, 0), V(-38, -16, 0)),  # 1
    Part.LineSegment(V(-38, -16, 0), V(-38, 0, 0)),  # 2
    Part.LineSegment(V(-38, 0, 0), V(-62, 0, 0)),  # 3
    Part.LineSegment(V(-62, 186, 0), V(-62, 170, 0)),  # 4
    Part.LineSegment(V(-62, 170, 0), V(-38, 170, 0)),  # 5
    Part.LineSegment(V(-38, 170, 0), V(-38, 186, 0)),  # 6
    Part.LineSegment(V(-38, 186, 0), V(-62, 186, 0)),  # 7
    Part.LineSegment(V(38, 0, 0), V(38, -16, 0)),  # 8
    Part.LineSegment(V(38, -16, 0), V(62, -16, 0)),  # 9
    Part.LineSegment(V(62, -16, 0), V(62, 0, 0)),  # 10
    Part.LineSegment(V(62, 0, 0), V(38, 0, 0)),  # 11
    Part.LineSegment(V(38, 186, 0), V(38, 170, 0)),  # 12
    Part.LineSegment(V(38, 170, 0), V(62, 170, 0)),  # 13
    Part.LineSegment(V(62, 170, 0), V(62, 186, 0)),  # 14
    Part.LineSegment(V(62, 186, 0), V(38, 186, 0)),  # 15
], False)
sketch14.addConstraint([
    Sketcher.Constraint("Coincident", 0, 2, 1, 1),
    Sketcher.Constraint("Coincident", 1, 2, 2, 1),
    Sketcher.Constraint("Coincident", 2, 2, 3, 1),
    Sketcher.Constraint("Coincident", 3, 2, 0, 1),
    Sketcher.Constraint("Coincident", 4, 2, 5, 1),
    Sketcher.Constraint("Coincident", 5, 2, 6, 1),
    Sketcher.Constraint("Coincident", 6, 2, 7, 1),
    Sketcher.Constraint("Coincident", 7, 2, 4, 1),
    Sketcher.Constraint("Coincident", 8, 2, 9, 1),
    Sketcher.Constraint("Coincident", 9, 2, 10, 1),
    Sketcher.Constraint("Coincident", 10, 2, 11, 1),
    Sketcher.Constraint("Coincident", 11, 2, 8, 1),
    Sketcher.Constraint("Coincident", 12, 2, 13, 1),
    Sketcher.Constraint("Coincident", 13, 2, 14, 1),
    Sketcher.Constraint("Coincident", 14, 2, 15, 1),
    Sketcher.Constraint("Coincident", 15, 2, 12, 1),
    Sketcher.Constraint("Vertical", 0),
    Sketcher.Constraint("Horizontal", 1),
    Sketcher.Constraint("Vertical", 2),
    Sketcher.Constraint("Horizontal", 3),
    Sketcher.Constraint("Vertical", 4),
    Sketcher.Constraint("Horizontal", 5),
    Sketcher.Constraint("Vertical", 6),
    Sketcher.Constraint("Horizontal", 7),
    Sketcher.Constraint("Vertical", 8),
    Sketcher.Constraint("Horizontal", 9),
    Sketcher.Constraint("Vertical", 10),
    Sketcher.Constraint("Horizontal", 11),
    Sketcher.Constraint("Vertical", 12),
    Sketcher.Constraint("Horizontal", 13),
    Sketcher.Constraint("Vertical", 14),
    Sketcher.Constraint("Horizontal", 15),
    Sketcher.Constraint("Symmetric", 3, 2, 10, 2, -1, 1),
    Sketcher.Constraint("Symmetric", 1, 2, 8, 2, -2),
    Sketcher.Constraint("Symmetric", 5, 2, 12, 2, -2),
    Sketcher.Constraint("Symmetric", 7, 2, 14, 2, -2),
    Sketcher.Constraint("PointOnObject", 2, 2, -1),
    Sketcher.Constraint("Vertical", 3, 2, 4, 2),
    Sketcher.Constraint("Vertical", 2, 2, 5, 2),
    Sketcher.Constraint("Equal", 2, 4),
    Sketcher.Constraint("DistanceX", 1, 1, 1, 2, 24.0),
    Sketcher.Constraint("DistanceY", 0, 2, 0, 1, 16.0),
    Sketcher.Constraint("DistanceX", 0, 2, -1, 1, 62.0),
    Sketcher.Constraint("DistanceY", -1, 1, 4, 2, 170.0),
])
sketch14.setExpression("Constraints[40]", "Params.sketch14_width")
sketch14.setExpression("Constraints[41]", "Params.sketch14_height")
pad5 = body.newObject("PartDesign::Pad", "Pad004")
pad5.Profile = sketch14
pad5.setExpression("Length", "Params.pad5_length")

# Sketch on XY plane
sketch15 = body.newObject("Sketcher::SketchObject", "Sketch014")
sketch15.AttachmentSupport = (doc.getObject("XY_Plane"), [""])
sketch15.MapMode = "FlatFace"
sketch15.addGeometry([
    Part.Circle(V(-50, -8, 0), V(0, 0, 1), 2.1),
    Part.Circle(V(-50, 178, 0), V(0, 0, 1), 2.1),
    Part.Circle(V(50, -8, 0), V(0, 0, 1), 2.1),
    Part.Circle(V(50, 178, 0), V(0, 0, 1), 2.1),
], False)
sketch15.addConstraint([
    Sketcher.Constraint("Equal", 0, 1),
    Sketcher.Constraint("Equal", 1, 2),
    Sketcher.Constraint("Equal", 2, 3),
    Sketcher.Constraint("Symmetric", 0, 3, 2, 3, -2),
    Sketcher.Constraint("Symmetric", 1, 3, 3, 3, -2),
    Sketcher.Constraint("Vertical", 0, 3, 1, 3),
    Sketcher.Constraint("Diameter", 0, 4.3),
    Sketcher.Constraint("DistanceX", 0, 3, -1, 1, 50.0),
    Sketcher.Constraint("DistanceY", 0, 3, -1, 1, 8.0),
    Sketcher.Constraint("DistanceY", -1, 1, 1, 3, 178.0),
])
sketch15.setExpression("Constraints[6]", "Params.sketch15_diameter")
pocket10 = body.newObject("PartDesign::Pocket", "Pocket009")
pocket10.Profile = sketch15
pocket10.Type = "ThroughAll"
pocket10.Reversed = True

doc.recompute()
